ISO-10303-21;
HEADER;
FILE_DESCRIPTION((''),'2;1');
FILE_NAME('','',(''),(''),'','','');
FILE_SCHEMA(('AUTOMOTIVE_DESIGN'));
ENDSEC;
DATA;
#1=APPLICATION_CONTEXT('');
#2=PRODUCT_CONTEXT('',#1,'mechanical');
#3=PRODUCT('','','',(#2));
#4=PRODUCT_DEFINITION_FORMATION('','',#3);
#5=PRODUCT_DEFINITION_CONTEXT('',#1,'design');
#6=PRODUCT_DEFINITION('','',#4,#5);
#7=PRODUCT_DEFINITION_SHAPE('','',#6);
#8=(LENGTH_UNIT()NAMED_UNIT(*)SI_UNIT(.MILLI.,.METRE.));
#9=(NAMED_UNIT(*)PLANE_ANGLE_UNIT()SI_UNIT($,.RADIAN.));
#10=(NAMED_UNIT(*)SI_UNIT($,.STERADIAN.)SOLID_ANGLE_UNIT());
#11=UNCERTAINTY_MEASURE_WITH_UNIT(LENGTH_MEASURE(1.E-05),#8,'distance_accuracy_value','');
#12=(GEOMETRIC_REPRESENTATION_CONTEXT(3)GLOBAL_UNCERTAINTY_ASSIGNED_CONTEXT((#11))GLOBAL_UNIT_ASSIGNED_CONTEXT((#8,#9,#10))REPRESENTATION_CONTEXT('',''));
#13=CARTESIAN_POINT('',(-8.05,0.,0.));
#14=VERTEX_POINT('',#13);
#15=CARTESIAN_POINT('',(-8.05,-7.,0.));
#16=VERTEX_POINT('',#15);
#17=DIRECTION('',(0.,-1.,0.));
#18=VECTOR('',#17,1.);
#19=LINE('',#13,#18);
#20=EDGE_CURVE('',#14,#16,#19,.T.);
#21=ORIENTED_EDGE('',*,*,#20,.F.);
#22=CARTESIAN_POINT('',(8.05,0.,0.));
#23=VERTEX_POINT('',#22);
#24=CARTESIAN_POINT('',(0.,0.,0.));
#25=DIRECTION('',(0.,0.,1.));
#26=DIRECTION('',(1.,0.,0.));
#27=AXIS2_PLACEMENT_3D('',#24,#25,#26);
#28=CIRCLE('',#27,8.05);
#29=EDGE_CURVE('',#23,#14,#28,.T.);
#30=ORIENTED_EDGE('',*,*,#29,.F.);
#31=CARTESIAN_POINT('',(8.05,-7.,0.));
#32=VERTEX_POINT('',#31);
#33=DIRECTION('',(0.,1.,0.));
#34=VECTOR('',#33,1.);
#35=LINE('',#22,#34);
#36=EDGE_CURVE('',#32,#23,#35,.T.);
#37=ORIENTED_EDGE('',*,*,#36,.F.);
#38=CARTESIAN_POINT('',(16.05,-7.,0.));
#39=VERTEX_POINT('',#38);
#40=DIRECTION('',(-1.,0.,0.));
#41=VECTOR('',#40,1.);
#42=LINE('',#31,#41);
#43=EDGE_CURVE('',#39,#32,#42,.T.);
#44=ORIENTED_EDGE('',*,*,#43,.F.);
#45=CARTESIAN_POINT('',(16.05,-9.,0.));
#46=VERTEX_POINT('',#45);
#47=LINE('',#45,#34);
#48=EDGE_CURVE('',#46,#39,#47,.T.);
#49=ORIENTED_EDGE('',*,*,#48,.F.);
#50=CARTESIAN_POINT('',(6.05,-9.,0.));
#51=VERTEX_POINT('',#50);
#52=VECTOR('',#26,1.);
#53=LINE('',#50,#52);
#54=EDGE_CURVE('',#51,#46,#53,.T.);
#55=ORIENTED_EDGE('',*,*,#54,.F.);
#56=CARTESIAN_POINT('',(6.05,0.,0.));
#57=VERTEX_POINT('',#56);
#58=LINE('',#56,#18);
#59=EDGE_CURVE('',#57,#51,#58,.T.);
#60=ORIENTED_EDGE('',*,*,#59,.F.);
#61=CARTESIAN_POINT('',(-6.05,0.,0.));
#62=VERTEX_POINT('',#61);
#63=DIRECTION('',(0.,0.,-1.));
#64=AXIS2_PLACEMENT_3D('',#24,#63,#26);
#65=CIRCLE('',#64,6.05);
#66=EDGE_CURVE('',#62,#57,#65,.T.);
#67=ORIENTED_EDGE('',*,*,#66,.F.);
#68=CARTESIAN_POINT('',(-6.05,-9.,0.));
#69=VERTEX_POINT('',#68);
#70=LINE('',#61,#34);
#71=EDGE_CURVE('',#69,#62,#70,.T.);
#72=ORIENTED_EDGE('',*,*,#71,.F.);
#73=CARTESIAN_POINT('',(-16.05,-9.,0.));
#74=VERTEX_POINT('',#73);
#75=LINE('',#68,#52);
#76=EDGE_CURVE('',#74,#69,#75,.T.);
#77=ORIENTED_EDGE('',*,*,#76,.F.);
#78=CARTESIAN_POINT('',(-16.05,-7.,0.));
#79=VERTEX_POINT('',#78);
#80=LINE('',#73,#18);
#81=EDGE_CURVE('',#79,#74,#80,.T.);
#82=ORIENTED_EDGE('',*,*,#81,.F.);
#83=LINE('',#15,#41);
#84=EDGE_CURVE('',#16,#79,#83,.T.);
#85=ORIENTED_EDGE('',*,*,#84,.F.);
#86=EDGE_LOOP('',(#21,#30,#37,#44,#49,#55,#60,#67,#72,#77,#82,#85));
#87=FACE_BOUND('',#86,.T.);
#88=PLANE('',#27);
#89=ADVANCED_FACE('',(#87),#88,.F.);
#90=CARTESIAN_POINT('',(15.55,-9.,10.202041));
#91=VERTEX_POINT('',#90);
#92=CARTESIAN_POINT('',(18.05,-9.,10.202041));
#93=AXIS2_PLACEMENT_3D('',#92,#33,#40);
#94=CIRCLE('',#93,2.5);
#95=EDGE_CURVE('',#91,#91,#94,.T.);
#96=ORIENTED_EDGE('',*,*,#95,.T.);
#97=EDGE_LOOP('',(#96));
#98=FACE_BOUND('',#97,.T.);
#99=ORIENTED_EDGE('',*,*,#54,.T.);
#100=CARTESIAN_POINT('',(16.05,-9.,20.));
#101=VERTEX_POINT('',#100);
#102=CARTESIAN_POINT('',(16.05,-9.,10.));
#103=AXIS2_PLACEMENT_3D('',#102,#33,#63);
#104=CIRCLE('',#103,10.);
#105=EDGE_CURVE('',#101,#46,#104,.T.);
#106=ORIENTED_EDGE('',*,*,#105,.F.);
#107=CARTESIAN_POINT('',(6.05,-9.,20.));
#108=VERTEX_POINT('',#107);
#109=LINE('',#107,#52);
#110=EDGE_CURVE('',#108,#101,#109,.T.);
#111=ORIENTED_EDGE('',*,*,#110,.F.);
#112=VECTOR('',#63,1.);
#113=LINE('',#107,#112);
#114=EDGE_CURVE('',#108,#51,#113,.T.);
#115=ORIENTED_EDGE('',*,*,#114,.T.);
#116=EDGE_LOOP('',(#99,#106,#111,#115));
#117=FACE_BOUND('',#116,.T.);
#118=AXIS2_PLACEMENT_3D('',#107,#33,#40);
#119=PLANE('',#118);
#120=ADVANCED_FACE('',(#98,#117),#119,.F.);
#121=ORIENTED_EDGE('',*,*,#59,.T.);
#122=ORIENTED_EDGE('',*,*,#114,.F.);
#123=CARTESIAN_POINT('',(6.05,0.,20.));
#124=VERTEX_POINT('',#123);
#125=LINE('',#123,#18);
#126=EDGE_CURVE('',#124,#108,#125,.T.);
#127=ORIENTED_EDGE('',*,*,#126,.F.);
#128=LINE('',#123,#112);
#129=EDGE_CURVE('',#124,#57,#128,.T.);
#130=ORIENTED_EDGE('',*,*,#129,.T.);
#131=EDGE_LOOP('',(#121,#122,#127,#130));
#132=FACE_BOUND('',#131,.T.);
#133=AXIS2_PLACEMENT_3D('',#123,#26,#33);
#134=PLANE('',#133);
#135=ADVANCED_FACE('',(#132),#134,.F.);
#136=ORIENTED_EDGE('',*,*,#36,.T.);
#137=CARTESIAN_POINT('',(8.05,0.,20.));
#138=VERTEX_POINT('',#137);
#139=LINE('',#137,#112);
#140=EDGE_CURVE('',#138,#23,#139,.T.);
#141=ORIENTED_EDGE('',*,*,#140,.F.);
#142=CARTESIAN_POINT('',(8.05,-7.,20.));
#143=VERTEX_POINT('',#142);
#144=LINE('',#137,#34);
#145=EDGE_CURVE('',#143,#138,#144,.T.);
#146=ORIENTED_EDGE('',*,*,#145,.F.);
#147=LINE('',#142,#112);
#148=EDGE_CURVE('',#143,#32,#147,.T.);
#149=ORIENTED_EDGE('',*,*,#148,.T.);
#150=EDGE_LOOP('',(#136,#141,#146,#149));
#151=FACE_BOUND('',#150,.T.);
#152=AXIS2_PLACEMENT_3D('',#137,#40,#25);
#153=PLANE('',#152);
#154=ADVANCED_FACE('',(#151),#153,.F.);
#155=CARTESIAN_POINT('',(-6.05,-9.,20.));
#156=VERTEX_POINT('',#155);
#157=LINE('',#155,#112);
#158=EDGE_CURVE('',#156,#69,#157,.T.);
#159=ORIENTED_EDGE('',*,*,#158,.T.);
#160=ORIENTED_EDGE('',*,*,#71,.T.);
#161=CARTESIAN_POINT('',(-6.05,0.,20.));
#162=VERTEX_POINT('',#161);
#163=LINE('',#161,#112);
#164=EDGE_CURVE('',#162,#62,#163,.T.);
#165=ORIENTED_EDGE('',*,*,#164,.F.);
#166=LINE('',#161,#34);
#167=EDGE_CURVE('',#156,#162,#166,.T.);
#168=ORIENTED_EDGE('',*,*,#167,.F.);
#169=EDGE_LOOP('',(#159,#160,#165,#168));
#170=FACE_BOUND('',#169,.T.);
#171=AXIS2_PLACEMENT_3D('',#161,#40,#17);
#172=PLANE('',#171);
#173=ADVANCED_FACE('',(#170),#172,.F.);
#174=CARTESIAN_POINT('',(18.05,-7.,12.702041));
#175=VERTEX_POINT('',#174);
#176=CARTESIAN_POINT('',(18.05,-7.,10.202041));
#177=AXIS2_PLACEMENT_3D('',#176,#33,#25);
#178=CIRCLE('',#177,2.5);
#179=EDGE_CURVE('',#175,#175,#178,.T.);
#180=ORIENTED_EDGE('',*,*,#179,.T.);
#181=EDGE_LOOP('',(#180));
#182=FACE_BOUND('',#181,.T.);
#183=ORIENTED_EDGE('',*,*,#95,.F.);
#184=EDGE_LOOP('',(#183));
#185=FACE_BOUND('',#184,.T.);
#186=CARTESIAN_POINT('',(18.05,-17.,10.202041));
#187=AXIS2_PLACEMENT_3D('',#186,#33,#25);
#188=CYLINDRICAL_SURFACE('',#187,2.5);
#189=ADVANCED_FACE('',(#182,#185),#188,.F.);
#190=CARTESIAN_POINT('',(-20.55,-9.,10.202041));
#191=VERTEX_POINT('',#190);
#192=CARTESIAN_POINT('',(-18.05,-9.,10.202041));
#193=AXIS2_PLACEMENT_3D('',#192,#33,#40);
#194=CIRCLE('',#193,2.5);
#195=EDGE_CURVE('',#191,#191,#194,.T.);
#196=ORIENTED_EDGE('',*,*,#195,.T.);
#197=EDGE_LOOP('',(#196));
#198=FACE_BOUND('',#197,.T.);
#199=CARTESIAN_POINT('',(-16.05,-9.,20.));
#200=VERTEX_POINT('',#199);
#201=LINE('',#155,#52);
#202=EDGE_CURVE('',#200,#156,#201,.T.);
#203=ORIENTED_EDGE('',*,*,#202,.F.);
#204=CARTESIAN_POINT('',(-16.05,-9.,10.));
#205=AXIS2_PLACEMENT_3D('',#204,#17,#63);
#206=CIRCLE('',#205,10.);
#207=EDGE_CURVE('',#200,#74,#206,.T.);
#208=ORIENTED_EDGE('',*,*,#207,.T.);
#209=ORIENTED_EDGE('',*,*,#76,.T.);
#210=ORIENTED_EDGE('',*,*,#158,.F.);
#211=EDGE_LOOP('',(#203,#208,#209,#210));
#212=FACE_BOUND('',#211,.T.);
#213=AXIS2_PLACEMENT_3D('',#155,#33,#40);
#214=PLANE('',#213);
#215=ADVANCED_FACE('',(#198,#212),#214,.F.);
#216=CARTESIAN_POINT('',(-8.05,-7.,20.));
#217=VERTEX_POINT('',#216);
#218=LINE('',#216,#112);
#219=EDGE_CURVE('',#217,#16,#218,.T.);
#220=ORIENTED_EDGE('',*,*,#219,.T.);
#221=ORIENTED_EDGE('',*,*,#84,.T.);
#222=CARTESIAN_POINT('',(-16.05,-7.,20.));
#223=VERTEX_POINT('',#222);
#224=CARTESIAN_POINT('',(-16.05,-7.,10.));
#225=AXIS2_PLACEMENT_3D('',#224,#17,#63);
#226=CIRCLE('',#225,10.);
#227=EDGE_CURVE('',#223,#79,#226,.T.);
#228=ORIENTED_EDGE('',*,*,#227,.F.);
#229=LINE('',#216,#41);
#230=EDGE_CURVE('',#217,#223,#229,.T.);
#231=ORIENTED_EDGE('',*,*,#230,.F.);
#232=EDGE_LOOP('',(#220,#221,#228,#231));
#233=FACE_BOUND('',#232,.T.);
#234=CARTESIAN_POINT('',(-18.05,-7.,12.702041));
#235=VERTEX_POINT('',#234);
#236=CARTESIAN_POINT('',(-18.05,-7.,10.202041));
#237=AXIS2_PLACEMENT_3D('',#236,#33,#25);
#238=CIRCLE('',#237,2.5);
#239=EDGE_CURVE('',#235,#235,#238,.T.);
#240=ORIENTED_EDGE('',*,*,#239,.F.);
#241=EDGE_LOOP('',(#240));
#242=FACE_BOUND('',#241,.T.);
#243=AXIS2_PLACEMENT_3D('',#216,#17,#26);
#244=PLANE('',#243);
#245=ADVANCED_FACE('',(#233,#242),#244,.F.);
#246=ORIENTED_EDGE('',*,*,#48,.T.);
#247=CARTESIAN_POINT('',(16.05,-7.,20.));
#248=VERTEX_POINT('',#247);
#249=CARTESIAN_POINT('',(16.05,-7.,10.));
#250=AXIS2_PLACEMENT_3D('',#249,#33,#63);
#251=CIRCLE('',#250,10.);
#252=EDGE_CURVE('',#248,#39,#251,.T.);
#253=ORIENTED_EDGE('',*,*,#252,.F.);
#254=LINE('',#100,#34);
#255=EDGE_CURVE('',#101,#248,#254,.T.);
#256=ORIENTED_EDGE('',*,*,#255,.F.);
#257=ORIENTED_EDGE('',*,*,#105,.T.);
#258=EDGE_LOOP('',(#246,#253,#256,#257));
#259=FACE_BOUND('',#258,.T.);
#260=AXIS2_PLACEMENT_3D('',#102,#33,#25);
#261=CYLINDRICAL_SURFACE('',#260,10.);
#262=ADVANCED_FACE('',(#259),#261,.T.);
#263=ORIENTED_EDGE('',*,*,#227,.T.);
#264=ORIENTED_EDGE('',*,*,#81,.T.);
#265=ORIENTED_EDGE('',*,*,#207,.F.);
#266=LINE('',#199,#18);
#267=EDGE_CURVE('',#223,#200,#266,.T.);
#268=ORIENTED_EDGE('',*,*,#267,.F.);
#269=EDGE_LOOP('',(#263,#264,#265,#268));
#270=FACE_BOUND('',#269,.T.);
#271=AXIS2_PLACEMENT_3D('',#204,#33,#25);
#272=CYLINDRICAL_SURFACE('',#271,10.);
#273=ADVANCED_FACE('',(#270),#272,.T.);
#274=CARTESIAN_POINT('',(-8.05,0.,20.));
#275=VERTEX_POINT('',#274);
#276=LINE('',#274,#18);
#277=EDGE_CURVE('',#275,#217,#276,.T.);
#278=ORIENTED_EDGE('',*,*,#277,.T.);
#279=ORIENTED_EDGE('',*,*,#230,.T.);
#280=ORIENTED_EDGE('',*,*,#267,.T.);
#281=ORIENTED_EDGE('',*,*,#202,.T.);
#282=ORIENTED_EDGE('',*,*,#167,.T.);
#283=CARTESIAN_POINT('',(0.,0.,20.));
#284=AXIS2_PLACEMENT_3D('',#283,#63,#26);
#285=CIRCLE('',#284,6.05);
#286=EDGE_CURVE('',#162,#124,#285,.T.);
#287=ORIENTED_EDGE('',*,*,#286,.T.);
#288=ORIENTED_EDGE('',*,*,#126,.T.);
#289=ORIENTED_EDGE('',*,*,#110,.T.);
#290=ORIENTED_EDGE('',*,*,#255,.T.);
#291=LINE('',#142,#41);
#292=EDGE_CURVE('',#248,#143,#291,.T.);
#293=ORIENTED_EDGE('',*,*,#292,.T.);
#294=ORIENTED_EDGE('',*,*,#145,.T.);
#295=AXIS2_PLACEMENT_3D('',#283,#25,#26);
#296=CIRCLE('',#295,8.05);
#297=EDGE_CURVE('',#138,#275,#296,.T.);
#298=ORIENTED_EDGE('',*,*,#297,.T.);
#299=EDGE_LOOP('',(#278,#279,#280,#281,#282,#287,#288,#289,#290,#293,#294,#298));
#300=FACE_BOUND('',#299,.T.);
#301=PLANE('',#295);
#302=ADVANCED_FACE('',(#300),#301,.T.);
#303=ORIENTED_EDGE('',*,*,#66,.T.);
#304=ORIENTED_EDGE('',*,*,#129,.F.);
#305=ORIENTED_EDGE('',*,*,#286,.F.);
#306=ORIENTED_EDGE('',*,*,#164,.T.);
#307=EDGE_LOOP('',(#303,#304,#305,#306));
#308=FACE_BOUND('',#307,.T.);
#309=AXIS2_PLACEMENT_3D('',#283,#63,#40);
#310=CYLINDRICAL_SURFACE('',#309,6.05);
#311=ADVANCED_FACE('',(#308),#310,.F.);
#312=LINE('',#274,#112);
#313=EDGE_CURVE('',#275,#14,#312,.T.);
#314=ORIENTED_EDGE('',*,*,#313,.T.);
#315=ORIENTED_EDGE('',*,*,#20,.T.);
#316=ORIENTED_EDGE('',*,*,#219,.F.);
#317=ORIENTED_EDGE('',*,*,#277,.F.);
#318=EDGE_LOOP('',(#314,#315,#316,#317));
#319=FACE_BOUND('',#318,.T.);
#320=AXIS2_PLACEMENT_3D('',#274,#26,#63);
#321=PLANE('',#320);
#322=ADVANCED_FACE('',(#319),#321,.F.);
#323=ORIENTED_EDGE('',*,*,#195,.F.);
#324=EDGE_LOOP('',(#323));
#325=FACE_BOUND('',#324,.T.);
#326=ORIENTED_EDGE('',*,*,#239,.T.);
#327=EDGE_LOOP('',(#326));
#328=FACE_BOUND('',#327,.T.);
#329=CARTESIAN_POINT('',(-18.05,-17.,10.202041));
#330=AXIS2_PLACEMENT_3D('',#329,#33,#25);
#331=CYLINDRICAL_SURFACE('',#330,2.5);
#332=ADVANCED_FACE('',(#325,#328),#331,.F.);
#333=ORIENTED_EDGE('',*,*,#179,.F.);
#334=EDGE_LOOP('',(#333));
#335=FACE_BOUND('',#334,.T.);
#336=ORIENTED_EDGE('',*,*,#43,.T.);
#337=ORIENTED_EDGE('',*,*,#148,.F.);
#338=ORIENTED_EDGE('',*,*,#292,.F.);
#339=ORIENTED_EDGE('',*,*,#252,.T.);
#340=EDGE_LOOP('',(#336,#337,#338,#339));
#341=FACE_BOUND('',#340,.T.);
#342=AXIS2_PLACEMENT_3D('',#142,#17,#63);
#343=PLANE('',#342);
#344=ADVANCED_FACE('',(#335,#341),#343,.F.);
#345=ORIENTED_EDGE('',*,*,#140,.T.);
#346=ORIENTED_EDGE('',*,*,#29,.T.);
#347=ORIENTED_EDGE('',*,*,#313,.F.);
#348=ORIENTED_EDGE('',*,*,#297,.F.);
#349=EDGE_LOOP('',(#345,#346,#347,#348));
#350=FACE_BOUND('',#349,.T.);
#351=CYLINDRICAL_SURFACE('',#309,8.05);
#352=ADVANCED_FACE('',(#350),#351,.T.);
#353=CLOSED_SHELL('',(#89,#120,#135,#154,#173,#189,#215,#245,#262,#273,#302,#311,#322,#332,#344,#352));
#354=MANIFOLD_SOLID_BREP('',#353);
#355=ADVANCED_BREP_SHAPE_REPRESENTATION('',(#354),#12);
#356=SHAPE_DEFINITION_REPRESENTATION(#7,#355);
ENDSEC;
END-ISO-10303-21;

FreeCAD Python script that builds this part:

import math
import FreeCAD as App
import Part
import Sketcher

doc = App.newDocument("Part")
body = doc.addObject("PartDesign::Body", "Body")

# Sketch on XY plane
sketch1 = body.newObject("Sketcher::SketchObject", "Sketch")
sketch1.AttachmentSupport = (doc.getObject("XY_Plane"), [""])
sketch1.MapMode = "FlatFace"
sketch1.addGeometry(Part.LineSegment(App.Vector(-6, -9, 0), App.Vector(-6, 0, 0)), False)
sketch1.addGeometry(Part.ArcOfCircle(Part.Circle(App.Vector(0, 0, 0), App.Vector(0, 0, 1), 6), math.radians(0), math.radians(180)), False)
sketch1.addGeometry(Part.LineSegment(App.Vector(6, 0, 0), App.Vector(6, -9, 0)), False)
sketch1.addGeometry(Part.LineSegment(App.Vector(6, -9, 0), App.Vector(16.1, -9, 0)), False)
sketch1.addGeometry(Part.LineSegment(App.Vector(16.1, -9, 0), App.Vector(16.1, -7, 0)), False)
sketch1.addGeometry(Part.LineSegment(App.Vector(16.1, -7, 0), App.Vector(8.1, -7, 0)), False)
sketch1.addGeometry(Part.LineSegment(App.Vector(8.1, -7, 0), App.Vector(8.1, 0, 0)), False)
sketch1.addGeometry(Part.ArcOfCircle(Part.Circle(App.Vector(0, 0, 0), App.Vector(0, 0, 1), 8.1), math.radians(0), math.radians(180)), False)
sketch1.addGeometry(Part.LineSegment(App.Vector(-8.1, 0, 0), App.Vector(-8.1, -7, 0)), False)
sketch1.addGeometry(Part.LineSegment(App.Vector(-8.1, -7, 0), App.Vector(-16.1, -7, 0)), False)
sketch1.addGeometry(Part.LineSegment(App.Vector(-16.1, -7, 0), App.Vector(-16.1, -9, 0)), False)
sketch1.addGeometry(Part.LineSegment(App.Vector(-16.1, -9, 0), App.Vector(-6, -9, 0)), False)
sketch1.addConstraint(Sketcher.Constraint("Tangent", 0, 2, 1, 2))
sketch1.addConstraint(Sketcher.Constraint("Tangent", 1, 1, 2, 1))
sketch1.addConstraint(Sketcher.Constraint("Coincident", 2, 2, 3, 1))
sketch1.addConstraint(Sketcher.Constraint("Coincident", 3, 2, 4, 1))
sketch1.addConstraint(Sketcher.Constraint("Coincident", 4, 2, 5, 1))
sketch1.addConstraint(Sketcher.Constraint("Coincident", 5, 2, 6, 1))
sketch1.addConstraint(Sketcher.Constraint("Tangent", 6, 2, 7, 1))
sketch1.addConstraint(Sketcher.Constraint("Tangent", 7, 2, 8, 1))
sketch1.addConstraint(Sketcher.Constraint("Coincident", 8, 2, 9, 1))
sketch1.addConstraint(Sketcher.Constraint("Coincident", 9, 2, 10, 1))
sketch1.addConstraint(Sketcher.Constraint("Coincident", 10, 2, 11, 1))
sketch1.addConstraint(Sketcher.Constraint("Coincident", 11, 2, 0, 1))
sketch1.addConstraint(Sketcher.Constraint("Vertical", 0))
sketch1.addConstraint(Sketcher.Constraint("Vertical", 2))
sketch1.addConstraint(Sketcher.Constraint("Horizontal", 3))
sketch1.addConstraint(Sketcher.Constraint("Vertical", 4))
sketch1.addConstraint(Sketcher.Constraint("Horizontal", 5))
sketch1.addConstraint(Sketcher.Constraint("Vertical", 6))
sketch1.addConstraint(Sketcher.Constraint("Vertical", 8))
sketch1.addConstraint(Sketcher.Constraint("Horizontal", 9))
sketch1.addConstraint(Sketcher.Constraint("Vertical", 10))
sketch1.addConstraint(Sketcher.Constraint("Horizontal", 11))
sketch1.addConstraint(Sketcher.Constraint("Coincident", 1, 3, -1, 1))
sketch1.addConstraint(Sketcher.Constraint("Coincident", 7, 3, -1, 1))
sketch1.addConstraint(Sketcher.Constraint("Symmetric", 4, 2, 9, 2, -2))
sketch1.addConstraint(Sketcher.Constraint("Horizontal", 3, 2, 10, 2))
sketch1.addConstraint(Sketcher.Constraint("DistanceX", 3, 1, 3, 2, 10.0))
sketch1.addConstraint(Sketcher.Constraint("DistanceX", 5, 2, 5, 1, 8.0))
sketch1.addConstraint(Sketcher.Constraint("DistanceY", 0, 1, 0, 2, 9.0))
sketch1.addConstraint(Sketcher.Constraint("DistanceY", 4, 1, 4, 2, 2.0))
sketch1.addConstraint(Sketcher.Constraint("Radius", 1, 6.05))
pad1 = body.newObject("PartDesign::Pad", "Pad")
pad1.Profile = sketch1
pad1.Length = 20

# Sketch on XZ plane
sketch2 = body.newObject("Sketcher::SketchObject", "Sketch001")
sketch2.AttachmentSupport = (doc.getObject("XZ_Plane"), [""])
sketch2.MapMode = "FlatFace"
sketch2.AttachmentOffset = App.Placement(App.Vector(0, 0, 7), App.Rotation())
sketch2.addGeometry(Part.LineSegment(App.Vector(16, 0, 0), App.Vector(16, 20, 0)), False)
sketch2.addGeometry(Part.ArcOfCircle(Part.Circle(App.Vector(16, 10, 0), App.Vector(0, 0, 1), 10), math.radians(-90), math.radians(90)), False)
sketch2.addConstraint(Sketcher.Constraint("Coincident", 0, 1, 1, 1))
sketch2.addConstraint(Sketcher.Constraint("Coincident", 1, 2, 0, 2))
sketch2.addConstraint(Sketcher.Constraint("Vertical", 0))
sketch2.addConstraint(Sketcher.Constraint("PointOnObject", 0, 1, -1))
sketch2.addConstraint(Sketcher.Constraint("Vertical", 1, 3, 0, 1))
sketch2.addConstraint(Sketcher.Constraint("Radius", 1, 10.0))
sketch2.addConstraint(Sketcher.Constraint("DistanceX", -1, 1, 1, 3, 16.05))
pad2 = body.newObject("PartDesign::Pad", "Pad001")
pad2.Profile = sketch2
pad2.Length = 2
doc.recompute()

mirrored = body.newObject("PartDesign::Mirrored", "Mirrored")
mirrored.Originals = [pad2]
mirrored.MirrorPlane = (doc.getObject("YZ_Plane"), [""])
body.Tip = mirrored

# Sketch on XZ plane
sketch3 = body.newObject("Sketcher::SketchObject", "Sketch002")
sketch3.AttachmentSupport = (doc.getObject("XZ_Plane"), [""])
sketch3.MapMode = "FlatFace"
sketch3.AttachmentOffset = App.Placement(App.Vector(0, 0, 7), App.Rotation())
sketch3.addGeometry(Part.Circle(App.Vector(18.1, 10.2, 0), App.Vector(0, 0, 1), 2.5), False)
sketch3.addGeometry(Part.Circle(App.Vector(-18.1, 10.2, 0), App.Vector(0, 0, 1), 2.5), False)
sketch3.addConstraint(Sketcher.Constraint("Equal", 0, 1))
sketch3.addConstraint(Sketcher.Constraint("Symmetric", 0, 3, 1, 3, -2))
sketch3.addConstraint(Sketcher.Constraint("Diameter", 0, 5.0))
sketch3.addConstraint(Sketcher.Constraint("DistanceX", 1, 3, 0, 3, 36.1))
sketch3.addConstraint(Sketcher.Constraint("DistanceY", -1, 1, 0, 3, 10.202041))
pocket1 = body.newObject("PartDesign::Pocket", "Pocket")
pocket1.Profile = sketch3
pocket1.Length = 10
pocket1.Reversed = True

doc.recompute()
